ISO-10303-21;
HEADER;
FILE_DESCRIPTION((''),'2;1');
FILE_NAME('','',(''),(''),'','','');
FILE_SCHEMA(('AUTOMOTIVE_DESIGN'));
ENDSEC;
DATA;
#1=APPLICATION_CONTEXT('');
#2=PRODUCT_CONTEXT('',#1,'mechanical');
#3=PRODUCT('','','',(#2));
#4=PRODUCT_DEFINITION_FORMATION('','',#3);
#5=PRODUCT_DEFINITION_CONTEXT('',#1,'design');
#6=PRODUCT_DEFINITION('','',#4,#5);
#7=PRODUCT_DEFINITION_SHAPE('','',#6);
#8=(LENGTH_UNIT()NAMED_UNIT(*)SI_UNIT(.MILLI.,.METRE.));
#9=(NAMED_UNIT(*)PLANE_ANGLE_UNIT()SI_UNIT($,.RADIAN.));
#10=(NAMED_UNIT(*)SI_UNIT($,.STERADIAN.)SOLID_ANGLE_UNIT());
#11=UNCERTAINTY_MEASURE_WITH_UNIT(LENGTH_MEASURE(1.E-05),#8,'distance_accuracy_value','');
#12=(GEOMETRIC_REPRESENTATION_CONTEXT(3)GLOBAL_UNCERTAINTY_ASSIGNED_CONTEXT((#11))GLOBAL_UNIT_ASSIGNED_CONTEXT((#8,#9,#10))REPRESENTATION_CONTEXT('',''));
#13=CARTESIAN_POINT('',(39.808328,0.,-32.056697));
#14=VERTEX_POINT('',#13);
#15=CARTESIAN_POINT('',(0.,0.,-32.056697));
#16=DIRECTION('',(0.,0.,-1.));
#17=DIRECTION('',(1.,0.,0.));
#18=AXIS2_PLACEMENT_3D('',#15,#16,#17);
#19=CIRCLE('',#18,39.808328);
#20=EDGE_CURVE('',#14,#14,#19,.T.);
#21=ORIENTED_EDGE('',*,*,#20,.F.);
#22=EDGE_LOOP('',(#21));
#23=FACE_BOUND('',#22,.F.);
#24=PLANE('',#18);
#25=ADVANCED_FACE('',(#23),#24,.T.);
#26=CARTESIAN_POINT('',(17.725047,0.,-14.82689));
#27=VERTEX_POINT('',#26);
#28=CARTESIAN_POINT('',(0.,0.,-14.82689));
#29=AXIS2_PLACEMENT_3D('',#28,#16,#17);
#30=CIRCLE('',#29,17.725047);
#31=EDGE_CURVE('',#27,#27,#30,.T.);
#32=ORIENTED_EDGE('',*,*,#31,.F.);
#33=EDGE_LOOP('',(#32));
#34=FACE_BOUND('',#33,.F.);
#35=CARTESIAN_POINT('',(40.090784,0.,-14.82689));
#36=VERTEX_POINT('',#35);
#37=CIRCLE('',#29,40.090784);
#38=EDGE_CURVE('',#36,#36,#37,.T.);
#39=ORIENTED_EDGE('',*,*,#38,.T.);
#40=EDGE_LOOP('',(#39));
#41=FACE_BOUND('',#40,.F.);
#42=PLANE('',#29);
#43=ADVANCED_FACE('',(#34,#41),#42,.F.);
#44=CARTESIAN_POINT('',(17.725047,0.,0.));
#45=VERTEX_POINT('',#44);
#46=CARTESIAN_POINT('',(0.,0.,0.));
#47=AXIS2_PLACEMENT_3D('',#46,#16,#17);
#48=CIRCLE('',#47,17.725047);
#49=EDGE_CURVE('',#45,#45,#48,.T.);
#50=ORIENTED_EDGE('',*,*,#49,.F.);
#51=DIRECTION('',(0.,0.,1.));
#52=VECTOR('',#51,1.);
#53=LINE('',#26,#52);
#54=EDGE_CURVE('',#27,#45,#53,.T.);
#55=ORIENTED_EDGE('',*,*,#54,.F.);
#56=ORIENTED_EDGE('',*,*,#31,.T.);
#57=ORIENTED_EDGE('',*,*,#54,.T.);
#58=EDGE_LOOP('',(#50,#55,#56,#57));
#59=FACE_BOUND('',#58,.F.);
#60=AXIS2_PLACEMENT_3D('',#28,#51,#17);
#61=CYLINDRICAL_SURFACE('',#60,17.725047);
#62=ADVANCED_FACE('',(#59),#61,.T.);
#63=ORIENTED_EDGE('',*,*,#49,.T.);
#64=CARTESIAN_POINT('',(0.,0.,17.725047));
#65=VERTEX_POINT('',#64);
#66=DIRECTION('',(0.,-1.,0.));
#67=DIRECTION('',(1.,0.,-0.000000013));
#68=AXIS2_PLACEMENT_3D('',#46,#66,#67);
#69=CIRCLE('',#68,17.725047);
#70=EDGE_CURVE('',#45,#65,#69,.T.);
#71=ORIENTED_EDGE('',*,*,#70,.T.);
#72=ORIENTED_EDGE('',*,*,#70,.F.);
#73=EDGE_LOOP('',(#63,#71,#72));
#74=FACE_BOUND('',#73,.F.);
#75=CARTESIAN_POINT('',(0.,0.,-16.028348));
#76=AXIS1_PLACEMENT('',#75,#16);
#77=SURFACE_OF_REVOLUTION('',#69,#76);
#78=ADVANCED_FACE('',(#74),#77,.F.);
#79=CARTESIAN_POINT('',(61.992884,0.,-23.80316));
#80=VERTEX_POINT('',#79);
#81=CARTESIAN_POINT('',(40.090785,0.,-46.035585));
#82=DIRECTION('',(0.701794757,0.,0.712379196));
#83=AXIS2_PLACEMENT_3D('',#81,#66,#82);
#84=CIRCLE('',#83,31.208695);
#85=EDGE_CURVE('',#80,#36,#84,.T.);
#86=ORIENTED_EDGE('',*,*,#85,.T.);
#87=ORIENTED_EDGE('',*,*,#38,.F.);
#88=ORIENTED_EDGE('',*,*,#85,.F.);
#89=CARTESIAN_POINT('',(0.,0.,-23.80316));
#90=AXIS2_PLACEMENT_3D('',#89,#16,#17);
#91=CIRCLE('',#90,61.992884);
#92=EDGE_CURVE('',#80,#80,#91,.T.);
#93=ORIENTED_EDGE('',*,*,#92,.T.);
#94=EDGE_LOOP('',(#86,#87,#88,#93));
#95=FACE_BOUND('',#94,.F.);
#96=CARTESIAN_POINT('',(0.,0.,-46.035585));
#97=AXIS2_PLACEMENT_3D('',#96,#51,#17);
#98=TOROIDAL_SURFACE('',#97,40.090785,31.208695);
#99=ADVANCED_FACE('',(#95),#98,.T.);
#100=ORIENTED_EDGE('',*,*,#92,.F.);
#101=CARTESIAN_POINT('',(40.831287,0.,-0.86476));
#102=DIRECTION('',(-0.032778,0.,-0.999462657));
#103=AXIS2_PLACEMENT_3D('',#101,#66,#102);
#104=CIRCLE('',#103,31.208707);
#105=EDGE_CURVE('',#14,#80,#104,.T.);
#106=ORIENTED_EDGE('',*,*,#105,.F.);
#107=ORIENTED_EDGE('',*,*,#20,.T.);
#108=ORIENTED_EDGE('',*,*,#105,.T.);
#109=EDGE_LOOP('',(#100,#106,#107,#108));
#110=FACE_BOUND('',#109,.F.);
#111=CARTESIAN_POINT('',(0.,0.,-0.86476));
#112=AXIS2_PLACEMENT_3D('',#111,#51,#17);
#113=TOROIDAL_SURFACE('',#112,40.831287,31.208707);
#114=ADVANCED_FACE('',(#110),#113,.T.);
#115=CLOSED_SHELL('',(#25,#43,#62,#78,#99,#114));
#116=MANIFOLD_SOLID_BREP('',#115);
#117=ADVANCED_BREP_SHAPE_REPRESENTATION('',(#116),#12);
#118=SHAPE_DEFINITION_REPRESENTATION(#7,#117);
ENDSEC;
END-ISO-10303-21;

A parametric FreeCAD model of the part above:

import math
import FreeCAD as App
import Part
import Sketcher

V = App.Vector

doc = App.newDocument("Part")
body = doc.addObject("PartDesign::Body", "Body")

# Sketch on XZ plane
sketch1 = body.newObject("Sketcher::SketchObject", "Sketch")
sketch1.AttachmentSupport = (doc.getObject("XZ_Plane"), [""])
sketch1.MapMode = "FlatFace"
sketch1.addGeometry(Part.LineSegment(V(18, -15, 0), V(18, 0, 0)), False)
sketch1.addGeometry(Part.ArcOfCircle(Part.Circle(V(0, 0, 0), V(0, 0, 1), 18), math.radians(0), math.radians(90)), False)
sketch1.addGeometry(Part.LineSegment(V(0, 18, 0), V(0, -32, 0)), False)
sketch1.addGeometry(Part.LineSegment(V(0, -32, 0), V(40, -32, 0)), False)
sketch1.addGeometry(Part.ArcOfCircle(Part.Circle(V(41, -1, 0), V(0, 0, 1), 31), math.radians(-92), math.radians(-47)), False)
sketch1.addGeometry(Part.ArcOfCircle(Part.Circle(V(40, -46, 0), V(0, 0, 1), 31), math.radians(45), math.radians(90)), False)
sketch1.addGeometry(Part.LineSegment(V(40, -15, 0), V(18, -15, 0)), False)
sketch1.addConstraint(Sketcher.Constraint("Tangent", 0, 2, 1, 1))
sketch1.addConstraint(Sketcher.Constraint("Coincident", 1, 2, 2, 1))
sketch1.addConstraint(Sketcher.Constraint("Coincident", 2, 2, 3, 1))
sketch1.addConstraint(Sketcher.Constraint("Coincident", 3, 2, 4, 1))
sketch1.addConstraint(Sketcher.Constraint("Coincident", 4, 2, 5, 1))
sketch1.addConstraint(Sketcher.Constraint("Tangent", 5, 2, 6, 1))
sketch1.addConstraint(Sketcher.Constraint("Coincident", 6, 2, 0, 1))
sketch1.addConstraint(Sketcher.Constraint("Vertical", 0))
sketch1.addConstraint(Sketcher.Constraint("Vertical", 2))
sketch1.addConstraint(Sketcher.Constraint("Horizontal", 3))
sketch1.addConstraint(Sketcher.Constraint("Horizontal", 6))
sketch1.addConstraint(Sketcher.Constraint("Coincident", 1, 3, -1, 1))
sketch1.addConstraint(Sketcher.Constraint("PointOnObject", 1, 2, -2))
sketch1.addConstraint(Sketcher.Constraint("Radius", 1, 17.725047))
sketch1.addConstraint(Sketcher.Constraint("Radius", 4, 31.208707))
sketch1.addConstraint(Sketcher.Constraint("Radius", 5, 31.208695))
sketch1.addConstraint(Sketcher.Constraint("DistanceX", 3, 1, 3, 2, 39.808328))
sketch1.addConstraint(Sketcher.Constraint("DistanceY", 0, 1, 0, 2, 14.82689))
sketch1.addConstraint(Sketcher.Constraint("DistanceX", 5, 3, 4, 3, 0.740502))
sketch1.addConstraint(Sketcher.Constraint("DistanceX", 5, 3, 4, 2, 21.902099))
sketch1.addConstraint(Sketcher.Constraint("DistanceX", 6, 2, 6, 1, 22.365737))
revolution = body.newObject("PartDesign::Revolution", "Revolution")
revolution.Profile = sketch1
revolution.ReferenceAxis = (sketch1, ["V_Axis"])
revolution.Angle = 360

doc.recompute()
